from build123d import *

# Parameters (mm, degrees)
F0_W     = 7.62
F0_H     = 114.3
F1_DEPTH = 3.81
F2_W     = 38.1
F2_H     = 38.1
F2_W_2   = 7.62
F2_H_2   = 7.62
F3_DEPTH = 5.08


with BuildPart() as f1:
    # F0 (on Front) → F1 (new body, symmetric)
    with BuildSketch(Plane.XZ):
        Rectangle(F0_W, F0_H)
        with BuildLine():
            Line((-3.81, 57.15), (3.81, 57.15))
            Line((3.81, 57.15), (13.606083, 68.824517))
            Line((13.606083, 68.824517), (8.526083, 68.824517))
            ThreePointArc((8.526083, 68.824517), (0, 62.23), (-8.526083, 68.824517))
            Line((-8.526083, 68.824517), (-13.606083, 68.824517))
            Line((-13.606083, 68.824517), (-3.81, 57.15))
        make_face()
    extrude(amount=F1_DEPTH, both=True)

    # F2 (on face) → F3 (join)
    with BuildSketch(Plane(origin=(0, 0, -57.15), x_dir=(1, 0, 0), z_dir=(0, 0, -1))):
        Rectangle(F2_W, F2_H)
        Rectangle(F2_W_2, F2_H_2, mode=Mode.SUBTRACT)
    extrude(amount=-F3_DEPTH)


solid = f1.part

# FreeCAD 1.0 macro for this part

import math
import FreeCAD as App
import Part
import Sketcher
from FreeCAD import Vector
Q = App.Units.Quantity

doc = App.newDocument("Part")
body = doc.addObject("PartDesign::Body", "Body")

sketch1 = doc.addObject("Sketcher::SketchObject", "Sketch")
body.addObject(sketch1)
sketch1.AttachmentSupport = (doc.XZ_Plane, [""])
sketch1.MapMode = "FlatFace"
sketch1.addGeometry([
    Part.LineSegment(Vector(-3.81, 57.15, 0), Vector(-3.81, -57.15, 0)),
    Part.LineSegment(Vector(-3.81, -57.15, 0), Vector(3.81, -57.15, 0)),
    Part.LineSegment(Vector(3.81, -57.15, 0), Vector(3.81, 57.15, 0)),
    Part.LineSegment(Vector(3.81, 57.15, 0), Vector(13.606083, 68.824517, 0)),
    Part.LineSegment(Vector(13.606083, 68.824517, 0), Vector(8.526083, 68.824517, 0)),
    Part.ArcOfCircle(Part.Circle(Vector(0, 71.038966, 0), Vector(0, 0, 1), 8.808966), math.radians(-165.44047), math.radians(-14.55953)),
    Part.LineSegment(Vector(-8.526083, 68.824517, 0), Vector(-13.606083, 68.824517, 0)),
    Part.LineSegment(Vector(-13.606083, 68.824517, 0), Vector(-3.81, 57.15, 0)),
], False)
sketch1.addConstraint([
    Sketcher.Constraint("Coincident", 0, 2, 1, 1),
    Sketcher.Constraint("Coincident", 1, 2, 2, 1),
    Sketcher.Constraint("Coincident", 2, 2, 3, 1),
    Sketcher.Constraint("Coincident", 3, 2, 4, 1),
    Sketcher.Constraint("Coincident", 4, 2, 5, 2),
    Sketcher.Constraint("Coincident", 5, 1, 6, 1),
    Sketcher.Constraint("Coincident", 6, 2, 7, 1),
    Sketcher.Constraint("Coincident", 7, 2, 0, 1),
    Sketcher.Constraint("Vertical", 0),
    Sketcher.Constraint("Horizontal", 1),
    Sketcher.Constraint("Vertical", 2),
    Sketcher.Constraint("Horizontal", 4),
    Sketcher.Constraint("Horizontal", 6),
    Sketcher.Constraint("Symmetric", 0, 2, 2, 2, -1, 1),
    Sketcher.Constraint("Symmetric", 4, 2, 5, 1, -2),
    Sketcher.Constraint("Horizontal", 2, 2, 7, 2),
    Sketcher.Constraint("Equal", 4, 6),
    Sketcher.Constraint("DistanceX", 1, 1, 1, 2, Q("0.3 in")),
    Sketcher.Constraint("DistanceX", 4, 2, 4, 1, Q("0.2 in")),
    Sketcher.Constraint("DistanceY", 0, 2, 0, 1, Q("4.5 in")),
    Sketcher.Constraint("Angle", 3, Q("50 deg")),
    Sketcher.Constraint("Distance", 3, Q("0.6 in")),
    Sketcher.Constraint("Radius", 5, 8.808966),
])
pad1 = doc.addObject("PartDesign::Pad", "Pad")
body.addObject(pad1)
pad1.Profile = sketch1
pad1.Length = Q("0.3 in")
pad1.Midplane = True

sketch2 = doc.addObject("Sketcher::SketchObject", "Sketch001")
body.addObject(sketch2)
sketch2.AttachmentSupport = (doc.XY_Plane, [""])
sketch2.MapMode = "FlatFace"
sketch2.AttachmentOffset = App.Placement(Vector(0, 0, -2.25 * 25.4), App.Rotation())
sketch2.addGeometry([
    Part.LineSegment(Vector(-19.05, -19.05, 0), Vector(-19.05, 19.05, 0)),
    Part.LineSegment(Vector(-19.05, 19.05, 0), Vector(19.05, 19.05, 0)),
    Part.LineSegment(Vector(19.05, 19.05, 0), Vector(19.05, -19.05, 0)),
    Part.LineSegment(Vector(19.05, -19.05, 0), Vector(-19.05, -19.05, 0)),
    Part.LineSegment(Vector(3.81, 3.81, 0), Vector(-3.81, 3.81, 0)),
    Part.LineSegment(Vector(-3.81, 3.81, 0), Vector(-3.81, -3.81, 0)),
    Part.LineSegment(Vector(-3.81, -3.81, 0), Vector(3.81, -3.81, 0)),
    Part.LineSegment(Vector(3.81, -3.81, 0), Vector(3.81, 3.81, 0)),
], False)
sketch2.addConstraint([
    Sketcher.Constraint("Coincident", 0, 2, 1, 1),
    Sketcher.Constraint("Coincident", 1, 2, 2, 1),
    Sketcher.Constraint("Coincident", 2, 2, 3, 1),
    Sketcher.Constraint("Coincident", 3, 2, 0, 1),
    Sketcher.Constraint("Coincident", 4, 2, 5, 1),
    Sketcher.Constraint("Coincident", 5, 2, 6, 1),
    Sketcher.Constraint("Coincident", 6, 2, 7, 1),
    Sketcher.Constraint("Coincident", 7, 2, 4, 1),
    Sketcher.Constraint("Vertical", 0),
    Sketcher.Constraint("Horizontal", 1),
    Sketcher.Constraint("Vertical", 2),
    Sketcher.Constraint("Horizontal", 3),
    Sketcher.Constraint("Horizontal", 4),
    Sketcher.Constraint("Vertical", 5),
    Sketcher.Constraint("Horizontal", 6),
    Sketcher.Constraint("Vertical", 7),
    Sketcher.Constraint("Symmetric", 0, 2, 2, 2, -1, 1),
    Sketcher.Constraint("Symmetric", 4, 2, 6, 2, -1, 1),
    Sketcher.Constraint("Equal", 3, 0),
    Sketcher.Constraint("Equal", 6, 5),
    Sketcher.Constraint("DistanceX", 1, 1, 1, 2, Q("1.5 in")),
    Sketcher.Constraint("DistanceX", 4, 2, 4, 1, Q("0.3 in")),
])
pad2 = doc.addObject("PartDesign::Pad", "Pad001")
body.addObject(pad2)
pad2.Profile = sketch2
pad2.Length = Q("0.2 in")

doc.recompute()
